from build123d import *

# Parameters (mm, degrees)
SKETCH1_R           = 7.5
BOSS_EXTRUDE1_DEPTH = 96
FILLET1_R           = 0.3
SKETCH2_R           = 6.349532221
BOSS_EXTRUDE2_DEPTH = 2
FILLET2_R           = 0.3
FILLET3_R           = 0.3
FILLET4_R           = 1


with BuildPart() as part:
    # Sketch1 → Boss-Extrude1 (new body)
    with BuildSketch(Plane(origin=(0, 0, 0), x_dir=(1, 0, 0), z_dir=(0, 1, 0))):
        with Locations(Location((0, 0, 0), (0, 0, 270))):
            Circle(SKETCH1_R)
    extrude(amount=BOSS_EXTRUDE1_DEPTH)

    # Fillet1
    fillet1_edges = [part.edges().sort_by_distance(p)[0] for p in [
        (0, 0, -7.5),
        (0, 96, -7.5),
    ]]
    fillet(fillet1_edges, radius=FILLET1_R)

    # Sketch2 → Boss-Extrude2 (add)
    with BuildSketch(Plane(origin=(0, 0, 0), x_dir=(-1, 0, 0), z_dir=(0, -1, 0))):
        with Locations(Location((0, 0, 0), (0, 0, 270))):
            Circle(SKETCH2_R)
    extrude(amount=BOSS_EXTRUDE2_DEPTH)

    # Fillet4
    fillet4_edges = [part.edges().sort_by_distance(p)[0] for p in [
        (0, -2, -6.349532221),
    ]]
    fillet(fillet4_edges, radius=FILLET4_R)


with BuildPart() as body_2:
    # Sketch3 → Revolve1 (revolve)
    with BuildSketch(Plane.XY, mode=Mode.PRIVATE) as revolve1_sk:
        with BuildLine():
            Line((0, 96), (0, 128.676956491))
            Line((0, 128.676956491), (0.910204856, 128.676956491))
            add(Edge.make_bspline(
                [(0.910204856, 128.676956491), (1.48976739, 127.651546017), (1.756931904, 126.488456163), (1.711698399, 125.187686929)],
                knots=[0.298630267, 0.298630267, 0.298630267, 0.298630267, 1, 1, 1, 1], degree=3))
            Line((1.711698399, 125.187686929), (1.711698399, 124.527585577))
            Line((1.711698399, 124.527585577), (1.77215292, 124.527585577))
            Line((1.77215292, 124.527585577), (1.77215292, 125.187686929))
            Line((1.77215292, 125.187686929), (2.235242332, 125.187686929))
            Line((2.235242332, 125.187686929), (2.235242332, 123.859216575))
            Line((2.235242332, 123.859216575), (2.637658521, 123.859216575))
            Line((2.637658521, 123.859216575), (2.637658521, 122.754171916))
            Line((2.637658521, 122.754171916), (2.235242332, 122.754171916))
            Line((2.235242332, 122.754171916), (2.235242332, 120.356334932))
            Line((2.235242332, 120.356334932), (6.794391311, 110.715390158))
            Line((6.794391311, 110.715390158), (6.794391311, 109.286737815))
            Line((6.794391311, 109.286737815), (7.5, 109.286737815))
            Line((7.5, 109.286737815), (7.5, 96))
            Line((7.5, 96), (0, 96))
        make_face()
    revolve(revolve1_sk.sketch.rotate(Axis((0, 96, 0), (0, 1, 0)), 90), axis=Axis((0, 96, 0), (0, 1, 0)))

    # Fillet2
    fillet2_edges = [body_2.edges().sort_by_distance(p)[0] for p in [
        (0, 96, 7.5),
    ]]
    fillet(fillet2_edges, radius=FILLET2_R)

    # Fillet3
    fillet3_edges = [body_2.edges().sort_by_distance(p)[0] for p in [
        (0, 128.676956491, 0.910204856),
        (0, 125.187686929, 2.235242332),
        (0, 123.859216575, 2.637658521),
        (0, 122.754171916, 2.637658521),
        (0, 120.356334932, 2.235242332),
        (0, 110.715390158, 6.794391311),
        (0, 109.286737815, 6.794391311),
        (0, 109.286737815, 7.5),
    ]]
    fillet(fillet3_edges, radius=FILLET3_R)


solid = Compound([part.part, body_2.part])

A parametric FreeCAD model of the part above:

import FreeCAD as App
import Part
import Sketcher
from FreeCAD import Vector


def edges_at(feature, points):
    """Names of the edges that pass closest to the given points."""
    edges = feature.Shape.Edges
    near = lambda p: min(range(len(edges)), key=lambda i: edges[i].distToShape(Part.Vertex(*p))[0])
    return sorted({f"Edge{near(p) + 1}" for p in points})

doc = App.newDocument("Part")
body = doc.addObject("PartDesign::Body", "Body")

# Sketch on XZ plane
sketch1 = body.newObject("Sketcher::SketchObject", "Sketch")
sketch1.AttachmentSupport = (doc.getObject("XZ_Plane"), [""])
sketch1.MapMode = "FlatFace"
sketch1.addGeometry(Part.Circle(Vector(0, 0, 0), Vector(0, 0, 1), 8), False)
sketch1.addConstraint(Sketcher.Constraint("Coincident", 0, 3, -1, 1))
sketch1.addConstraint(Sketcher.Constraint("Diameter", 0, 15.0))
pad1 = body.newObject("PartDesign::Pad", "Pad")
pad1.Profile = sketch1
pad1.Length = 96
pad1.Reversed = True
doc.recompute()

fillet = body.newObject("PartDesign::Fillet", "Fillet")
fillet.Base = (pad1, edges_at(pad1, [(0, 0, -7.5), (0, 96, -7.5)]))
fillet.Radius = 0.3

# Sketch on XZ plane
sketch2 = body.newObject("Sketcher::SketchObject", "Sketch001")
sketch2.AttachmentSupport = (doc.getObject("XZ_Plane"), [""])
sketch2.MapMode = "FlatFace"
sketch2.addGeometry(Part.Circle(Vector(0, 0, 0), Vector(0, 0, 1), 6), False)
sketch2.addConstraint(Sketcher.Constraint("Coincident", 0, 3, -1, 1))
sketch2.addConstraint(Sketcher.Constraint("Diameter", 0, 12.699064))
pad2 = body.newObject("PartDesign::Pad", "Pad001")
pad2.Profile = sketch2
pad2.Length = 2
doc.recompute()

fillet2 = body.newObject("PartDesign::Fillet", "Fillet001")
fillet2.Base = (pad2, edges_at(pad2, [(0, -2, -6.35)]))
fillet2.Radius = 1
body2 = doc.addObject("PartDesign::Body", "Body001")

# Sketch on XY plane
sketch3 = body2.newObject("Sketcher::SketchObject", "Sketch002")
sketch3.AttachmentSupport = (doc.getObject("XY_Plane001"), [""])
sketch3.MapMode = "FlatFace"
sketch3.addGeometry(Part.LineSegment(Vector(0, 128.676956, 0), Vector(0, 96, 0)), False)
sketch3.addGeometry(Part.LineSegment(Vector(0, 96, 0), Vector(7.5, 96, 0)), False)
sketch3.addGeometry(Part.LineSegment(Vector(7.5, 96, 0), Vector(7.5, 109.286738, 0)), False)
sketch3.addGeometry(Part.LineSegment(Vector(7.5, 109.286738, 0), Vector(6.794391, 109.286738, 0)), False)
sketch3.addGeometry(Part.LineSegment(Vector(6.794391, 109.286738, 0), Vector(6.794391, 110.71539, 0)), False)
sketch3.addGeometry(Part.LineSegment(Vector(6.794391, 110.71539, 0), Vector(2.235242, 120.356335, 0)), False)
sketch3.addGeometry(Part.LineSegment(Vector(2.235242, 120.356335, 0), Vector(2.235242, 122.754172, 0)), False)
sketch3.addGeometry(Part.LineSegment(Vector(2.235242, 122.754172, 0), Vector(2.637659, 122.754172, 0)), False)
sketch3.addGeometry(Part.LineSegment(Vector(2.637659, 122.754172, 0), Vector(2.637659, 123.859217, 0)), False)
sketch3.addGeometry(Part.LineSegment(Vector(2.637659, 123.859217, 0), Vector(2.235242, 123.859217, 0)), False)
sketch3.addGeometry(Part.LineSegment(Vector(2.235242, 123.859217, 0), Vector(2.235242, 125.187687, 0)), False)
sketch3.addGeometry(Part.LineSegment(Vector(2.235242, 125.187687, 0), Vector(1.772153, 125.187687, 0)), False)
sketch3.addGeometry(Part.LineSegment(Vector(1.772153, 125.187687, 0), Vector(1.772153, 124.527586, 0)), False)
sketch3.addGeometry(Part.LineSegment(Vector(1.772153, 124.527586, 0), Vector(1.711698, 124.527586, 0)), False)
sketch3.addGeometry(Part.LineSegment(Vector(1.711698, 124.527586, 0), Vector(1.711698, 125.187687, 0)), False)
sketch3.addGeometry(Part.BSplineCurve([Vector(0.910205, 128.676956, 0), Vector(1.489767, 127.651546, 0), Vector(1.756932, 126.488456, 0), Vector(1.711698, 125.187687, 0)], [4, 4], [0.298630267, 1], False, 3, [1, 1, 1, 1], False), False)
sketch3.addGeometry(Part.LineSegment(Vector(0.910205, 128.676956, 0), Vector(0, 128.676956, 0)), False)
sketch3.addConstraint(Sketcher.Constraint("Block", 15))
sketch3.addConstraint(Sketcher.Constraint("Coincident", 0, 2, 1, 1))
sketch3.addConstraint(Sketcher.Constraint("Coincident", 1, 2, 2, 1))
sketch3.addConstraint(Sketcher.Constraint("Coincident", 2, 2, 3, 1))
sketch3.addConstraint(Sketcher.Constraint("Coincident", 3, 2, 4, 1))
sketch3.addConstraint(Sketcher.Constraint("Coincident", 4, 2, 5, 1))
sketch3.addConstraint(Sketcher.Constraint("Coincident", 5, 2, 6, 1))
sketch3.addConstraint(Sketcher.Constraint("Coincident", 6, 2, 7, 1))
sketch3.addConstraint(Sketcher.Constraint("Coincident", 7, 2, 8, 1))
sketch3.addConstraint(Sketcher.Constraint("Coincident", 8, 2, 9, 1))
sketch3.addConstraint(Sketcher.Constraint("Coincident", 9, 2, 10, 1))
sketch3.addConstraint(Sketcher.Constraint("Coincident", 10, 2, 11, 1))
sketch3.addConstraint(Sketcher.Constraint("Coincident", 11, 2, 12, 1))
sketch3.addConstraint(Sketcher.Constraint("Coincident", 12, 2, 13, 1))
sketch3.addConstraint(Sketcher.Constraint("Coincident", 13, 2, 14, 1))
sketch3.addConstraint(Sketcher.Constraint("Coincident", 14, 2, 15, 2))
sketch3.addConstraint(Sketcher.Constraint("Coincident", 15, 1, 16, 1))
sketch3.addConstraint(Sketcher.Constraint("Coincident", 16, 2, 0, 1))
sketch3.addConstraint(Sketcher.Constraint("Vertical", 0))
sketch3.addConstraint(Sketcher.Constraint("Horizontal", 1))
sketch3.addConstraint(Sketcher.Constraint("Vertical", 2))
sketch3.addConstraint(Sketcher.Constraint("Horizontal", 3))
sketch3.addConstraint(Sketcher.Constraint("Vertical", 4))
sketch3.addConstraint(Sketcher.Constraint("Vertical", 6))
sketch3.addConstraint(Sketcher.Constraint("Horizontal", 7))
sketch3.addConstraint(Sketcher.Constraint("Vertical", 8))
sketch3.addConstraint(Sketcher.Constraint("Horizontal", 9))
sketch3.addConstraint(Sketcher.Constraint("Vertical", 10))
sketch3.addConstraint(Sketcher.Constraint("Horizontal", 11))
sketch3.addConstraint(Sketcher.Constraint("Vertical", 12))
sketch3.addConstraint(Sketcher.Constraint("Horizontal", 13))
sketch3.addConstraint(Sketcher.Constraint("Vertical", 14))
sketch3.addConstraint(Sketcher.Constraint("Horizontal", 16))
sketch3.addConstraint(Sketcher.Constraint("PointOnObject", 0, 2, -2))
sketch3.addConstraint(Sketcher.Constraint("Horizontal", 11, 2, 14, 2))
sketch3.addConstraint(Sketcher.Constraint("Vertical", 6, 2, 9, 2))
sketch3.addConstraint(Sketcher.Constraint("DistanceX", 1, 1, 1, 2, 7.5))
sketch3.addConstraint(Sketcher.Constraint("DistanceY", -1, 1, 0, 2, 96.0))
sketch3.addConstraint(Sketcher.Constraint("DistanceY", 12, 2, 12, 1, 0.660101))
sketch3.addConstraint(Sketcher.Constraint("Distance", 5, 10.664598))
sketch3.addConstraint(Sketcher.Constraint("DistanceX", 3, 2, 3, 1, 0.705609))
sketch3.addConstraint(Sketcher.Constraint("DistanceX", 11, 2, 11, 1, 0.463089))
sketch3.addConstraint(Sketcher.Constraint("DistanceY", 10, 1, 10, 2, 1.32847))
sketch3.addConstraint(Sketcher.Constraint("DistanceX", 7, 1, 7, 2, 0.402416))
sketch3.addConstraint(Sketcher.Constraint("DistanceX", 13, 2, 13, 1, 0.060455))
sketch3.addConstraint(Sketcher.Constraint("DistanceY", 2, 1, 2, 2, 13.286738))
sketch3.addConstraint(Sketcher.Constraint("DistanceY", 4, 1, 4, 2, 1.428652))
sketch3.addConstraint(Sketcher.Constraint("DistanceY", 6, 1, 6, 2, 2.397837))
revolution = body2.newObject("PartDesign::Revolution", "Revolution")
revolution.Profile = sketch3
revolution.ReferenceAxis = (sketch3, ["V_Axis"])
revolution.Angle = 360
doc.recompute()

fillet3 = body2.newObject("PartDesign::Fillet", "Fillet002")
fillet3.Base = (revolution, edges_at(revolution, [(0, 96, 7.5)]))
fillet3.Radius = 0.3
doc.recompute()

fillet4 = body2.newObject("PartDesign::Fillet", "Fillet003")
fillet4.Base = (fillet3, edges_at(fillet3, [
    (0, 128.677, 0.91),
    (0, 125.188, 2.235),
    (0, 123.859, 2.638),
    (0, 122.754, 2.638),
    (0, 120.356, 2.235),
    (0, 110.715, 6.794),
    (0, 109.287, 6.794),
    (0, 109.287, 7.5),
]))
fillet4.Radius = 0.3

doc.recompute()
